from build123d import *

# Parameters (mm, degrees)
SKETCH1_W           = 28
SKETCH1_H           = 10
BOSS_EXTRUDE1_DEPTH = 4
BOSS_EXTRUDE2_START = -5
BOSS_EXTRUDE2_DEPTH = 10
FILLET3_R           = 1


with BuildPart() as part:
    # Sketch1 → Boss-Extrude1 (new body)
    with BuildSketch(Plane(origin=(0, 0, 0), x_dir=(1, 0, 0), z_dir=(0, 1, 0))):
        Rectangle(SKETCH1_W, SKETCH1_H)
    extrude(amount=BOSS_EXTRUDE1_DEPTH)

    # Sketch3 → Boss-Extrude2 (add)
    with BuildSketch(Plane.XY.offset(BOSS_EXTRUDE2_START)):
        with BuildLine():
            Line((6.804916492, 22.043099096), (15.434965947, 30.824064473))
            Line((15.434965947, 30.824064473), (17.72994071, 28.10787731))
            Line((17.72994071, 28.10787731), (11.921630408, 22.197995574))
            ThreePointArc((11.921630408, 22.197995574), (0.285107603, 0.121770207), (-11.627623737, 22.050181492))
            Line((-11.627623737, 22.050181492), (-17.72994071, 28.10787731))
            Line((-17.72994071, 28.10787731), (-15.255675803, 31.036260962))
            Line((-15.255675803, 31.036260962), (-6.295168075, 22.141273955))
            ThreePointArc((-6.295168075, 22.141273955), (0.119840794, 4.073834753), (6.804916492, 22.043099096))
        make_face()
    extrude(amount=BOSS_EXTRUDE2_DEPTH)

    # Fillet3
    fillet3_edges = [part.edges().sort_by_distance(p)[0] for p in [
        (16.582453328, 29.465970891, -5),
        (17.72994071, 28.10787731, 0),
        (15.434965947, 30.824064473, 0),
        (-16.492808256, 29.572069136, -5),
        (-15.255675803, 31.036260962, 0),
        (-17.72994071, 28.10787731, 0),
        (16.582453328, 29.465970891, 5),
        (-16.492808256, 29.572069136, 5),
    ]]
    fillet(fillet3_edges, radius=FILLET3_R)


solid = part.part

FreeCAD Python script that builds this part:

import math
import FreeCAD as App
import Part
import Sketcher

V = App.Vector


def edges_at(feature, points):
    """Names of the edges that pass closest to the given points."""
    edges = feature.Shape.Edges
    near = lambda p: min(range(len(edges)), key=lambda i: edges[i].distToShape(Part.Vertex(*p))[0])
    return sorted({f"Edge{near(p) + 1}" for p in points})

doc = App.newDocument("Part")
body = doc.addObject("PartDesign::Body", "Body")

sketch1 = body.newObject("Sketcher::SketchObject", "Sketch")
sketch1.AttachmentSupport = (doc.getObject("XZ_Plane"), [""])
sketch1.MapMode = "FlatFace"
sketch1.addGeometry([
    Part.LineSegment(V(-14, -5, 0), V(-14, 5, 0)),
    Part.LineSegment(V(-14, 5, 0), V(14, 5, 0)),
    Part.LineSegment(V(14, 5, 0), V(14, -5, 0)),
    Part.LineSegment(V(14, -5, 0), V(-14, -5, 0)),
], False)
sketch1.addConstraint([
    Sketcher.Constraint("Coincident", 0, 2, 1, 1),
    Sketcher.Constraint("Coincident", 1, 2, 2, 1),
    Sketcher.Constraint("Coincident", 2, 2, 3, 1),
    Sketcher.Constraint("Coincident", 3, 2, 0, 1),
    Sketcher.Constraint("Vertical", 0),
    Sketcher.Constraint("Horizontal", 1),
    Sketcher.Constraint("Vertical", 2),
    Sketcher.Constraint("Horizontal", 3),
    Sketcher.Constraint("Symmetric", 0, 2, 2, 2, -1, 1),
    Sketcher.Constraint("DistanceX", 1, 1, 1, 2, 28.0),
    Sketcher.Constraint("DistanceY", 0, 1, 0, 2, 10.0),
])
pad1 = body.newObject("PartDesign::Pad", "Pad")
pad1.Profile = sketch1
pad1.Length = 4
pad1.Reversed = True

sketch2 = body.newObject("Sketcher::SketchObject", "Sketch001")
sketch2.AttachmentSupport = (doc.getObject("XY_Plane"), [""])
sketch2.MapMode = "FlatFace"
sketch2.AttachmentOffset = App.Placement(V(0, 0, -5), App.Rotation())
sketch2.addGeometry([
    Part.LineSegment(V(15.434966, 30.824064, 0), V(6.804916, 22.043099, 0)),
    Part.ArcOfCircle(Part.Circle(V(0.19628, 14.273548, 0), V(0, 0, 1), 10.2), math.radians(129.525119), math.radians(409.616123)),
    Part.LineSegment(V(-6.295168, 22.141274, 0), V(-15.255676, 31.036261, 0)),
    Part.LineSegment(V(-15.255676, 31.036261, 0), V(-17.729941, 28.107877, 0)),
    Part.LineSegment(V(-17.729941, 28.107877, 0), V(-11.627624, 22.050181, 0)),
    Part.ArcOfCircle(Part.Circle(V(0.19628, 14.273548, 0), V(0, 0, 1), 14.152057), math.radians(146.666905), math.radians(394.052355)),
    Part.LineSegment(V(11.92163, 22.197996, 0), V(17.729941, 28.107877, 0)),
    Part.LineSegment(V(17.729941, 28.107877, 0), V(15.434966, 30.824064, 0)),
], False)
sketch2.addConstraint([
    Sketcher.Constraint("Coincident", 0, 2, 1, 2),
    Sketcher.Constraint("Coincident", 1, 1, 2, 1),
    Sketcher.Constraint("Coincident", 2, 2, 3, 1),
    Sketcher.Constraint("Coincident", 3, 2, 4, 1),
    Sketcher.Constraint("Coincident", 4, 2, 5, 1),
    Sketcher.Constraint("Coincident", 5, 2, 6, 1),
    Sketcher.Constraint("Coincident", 6, 2, 7, 1),
    Sketcher.Constraint("Coincident", 7, 2, 0, 1),
    Sketcher.Constraint("Coincident", 5, 3, 1, 3),
    Sketcher.Constraint("Symmetric", 3, 2, 6, 2, -2),
    Sketcher.Constraint("Parallel", 2, 4),
    Sketcher.Constraint("Parallel", 0, 6),
    Sketcher.Constraint("Radius", 1, 10.2),
    Sketcher.Constraint("Radius", 5, 14.152057),
    Sketcher.Constraint("DistanceY", -1, 1, 0, 2, 22.043099),
    Sketcher.Constraint("DistanceX", 1, 1, 5, 2, 18.216798),
    Sketcher.Constraint("Distance", 0, 12.311909),
    Sketcher.Constraint("Distance", 3, 3.833721),
    Sketcher.Constraint("DistanceX", -1, 1, 1, 3, 0.19628),
    Sketcher.Constraint("DistanceY", -1, 1, 1, 3, 14.273548),
    Sketcher.Constraint("DistanceX", 1, 1, -1, 1, 6.295168),
    Sketcher.Constraint("DistanceY", -1, 1, 2, 2, 31.036261),
    Sketcher.Constraint("DistanceX", 3, 2, -1, 1, 17.729941),
    Sketcher.Constraint("DistanceY", -1, 1, 4, 2, 22.050181),
])
pad2 = body.newObject("PartDesign::Pad", "Pad001")
pad2.Profile = sketch2
pad2.Length = 10
doc.recompute()

fillet = body.newObject("PartDesign::Fillet", "Fillet")
fillet.Base = (pad2, edges_at(pad2, [
    (16.582, 29.466, -5),
    (17.73, 28.108, 0),
    (15.435, 30.824, 0),
    (-16.493, 29.572, -5),
    (-15.256, 31.036, 0),
    (-17.73, 28.108, 0),
    (16.582, 29.466, 5),
    (-16.493, 29.572, 5),
]))
fillet.Radius = 1

doc.recompute()
